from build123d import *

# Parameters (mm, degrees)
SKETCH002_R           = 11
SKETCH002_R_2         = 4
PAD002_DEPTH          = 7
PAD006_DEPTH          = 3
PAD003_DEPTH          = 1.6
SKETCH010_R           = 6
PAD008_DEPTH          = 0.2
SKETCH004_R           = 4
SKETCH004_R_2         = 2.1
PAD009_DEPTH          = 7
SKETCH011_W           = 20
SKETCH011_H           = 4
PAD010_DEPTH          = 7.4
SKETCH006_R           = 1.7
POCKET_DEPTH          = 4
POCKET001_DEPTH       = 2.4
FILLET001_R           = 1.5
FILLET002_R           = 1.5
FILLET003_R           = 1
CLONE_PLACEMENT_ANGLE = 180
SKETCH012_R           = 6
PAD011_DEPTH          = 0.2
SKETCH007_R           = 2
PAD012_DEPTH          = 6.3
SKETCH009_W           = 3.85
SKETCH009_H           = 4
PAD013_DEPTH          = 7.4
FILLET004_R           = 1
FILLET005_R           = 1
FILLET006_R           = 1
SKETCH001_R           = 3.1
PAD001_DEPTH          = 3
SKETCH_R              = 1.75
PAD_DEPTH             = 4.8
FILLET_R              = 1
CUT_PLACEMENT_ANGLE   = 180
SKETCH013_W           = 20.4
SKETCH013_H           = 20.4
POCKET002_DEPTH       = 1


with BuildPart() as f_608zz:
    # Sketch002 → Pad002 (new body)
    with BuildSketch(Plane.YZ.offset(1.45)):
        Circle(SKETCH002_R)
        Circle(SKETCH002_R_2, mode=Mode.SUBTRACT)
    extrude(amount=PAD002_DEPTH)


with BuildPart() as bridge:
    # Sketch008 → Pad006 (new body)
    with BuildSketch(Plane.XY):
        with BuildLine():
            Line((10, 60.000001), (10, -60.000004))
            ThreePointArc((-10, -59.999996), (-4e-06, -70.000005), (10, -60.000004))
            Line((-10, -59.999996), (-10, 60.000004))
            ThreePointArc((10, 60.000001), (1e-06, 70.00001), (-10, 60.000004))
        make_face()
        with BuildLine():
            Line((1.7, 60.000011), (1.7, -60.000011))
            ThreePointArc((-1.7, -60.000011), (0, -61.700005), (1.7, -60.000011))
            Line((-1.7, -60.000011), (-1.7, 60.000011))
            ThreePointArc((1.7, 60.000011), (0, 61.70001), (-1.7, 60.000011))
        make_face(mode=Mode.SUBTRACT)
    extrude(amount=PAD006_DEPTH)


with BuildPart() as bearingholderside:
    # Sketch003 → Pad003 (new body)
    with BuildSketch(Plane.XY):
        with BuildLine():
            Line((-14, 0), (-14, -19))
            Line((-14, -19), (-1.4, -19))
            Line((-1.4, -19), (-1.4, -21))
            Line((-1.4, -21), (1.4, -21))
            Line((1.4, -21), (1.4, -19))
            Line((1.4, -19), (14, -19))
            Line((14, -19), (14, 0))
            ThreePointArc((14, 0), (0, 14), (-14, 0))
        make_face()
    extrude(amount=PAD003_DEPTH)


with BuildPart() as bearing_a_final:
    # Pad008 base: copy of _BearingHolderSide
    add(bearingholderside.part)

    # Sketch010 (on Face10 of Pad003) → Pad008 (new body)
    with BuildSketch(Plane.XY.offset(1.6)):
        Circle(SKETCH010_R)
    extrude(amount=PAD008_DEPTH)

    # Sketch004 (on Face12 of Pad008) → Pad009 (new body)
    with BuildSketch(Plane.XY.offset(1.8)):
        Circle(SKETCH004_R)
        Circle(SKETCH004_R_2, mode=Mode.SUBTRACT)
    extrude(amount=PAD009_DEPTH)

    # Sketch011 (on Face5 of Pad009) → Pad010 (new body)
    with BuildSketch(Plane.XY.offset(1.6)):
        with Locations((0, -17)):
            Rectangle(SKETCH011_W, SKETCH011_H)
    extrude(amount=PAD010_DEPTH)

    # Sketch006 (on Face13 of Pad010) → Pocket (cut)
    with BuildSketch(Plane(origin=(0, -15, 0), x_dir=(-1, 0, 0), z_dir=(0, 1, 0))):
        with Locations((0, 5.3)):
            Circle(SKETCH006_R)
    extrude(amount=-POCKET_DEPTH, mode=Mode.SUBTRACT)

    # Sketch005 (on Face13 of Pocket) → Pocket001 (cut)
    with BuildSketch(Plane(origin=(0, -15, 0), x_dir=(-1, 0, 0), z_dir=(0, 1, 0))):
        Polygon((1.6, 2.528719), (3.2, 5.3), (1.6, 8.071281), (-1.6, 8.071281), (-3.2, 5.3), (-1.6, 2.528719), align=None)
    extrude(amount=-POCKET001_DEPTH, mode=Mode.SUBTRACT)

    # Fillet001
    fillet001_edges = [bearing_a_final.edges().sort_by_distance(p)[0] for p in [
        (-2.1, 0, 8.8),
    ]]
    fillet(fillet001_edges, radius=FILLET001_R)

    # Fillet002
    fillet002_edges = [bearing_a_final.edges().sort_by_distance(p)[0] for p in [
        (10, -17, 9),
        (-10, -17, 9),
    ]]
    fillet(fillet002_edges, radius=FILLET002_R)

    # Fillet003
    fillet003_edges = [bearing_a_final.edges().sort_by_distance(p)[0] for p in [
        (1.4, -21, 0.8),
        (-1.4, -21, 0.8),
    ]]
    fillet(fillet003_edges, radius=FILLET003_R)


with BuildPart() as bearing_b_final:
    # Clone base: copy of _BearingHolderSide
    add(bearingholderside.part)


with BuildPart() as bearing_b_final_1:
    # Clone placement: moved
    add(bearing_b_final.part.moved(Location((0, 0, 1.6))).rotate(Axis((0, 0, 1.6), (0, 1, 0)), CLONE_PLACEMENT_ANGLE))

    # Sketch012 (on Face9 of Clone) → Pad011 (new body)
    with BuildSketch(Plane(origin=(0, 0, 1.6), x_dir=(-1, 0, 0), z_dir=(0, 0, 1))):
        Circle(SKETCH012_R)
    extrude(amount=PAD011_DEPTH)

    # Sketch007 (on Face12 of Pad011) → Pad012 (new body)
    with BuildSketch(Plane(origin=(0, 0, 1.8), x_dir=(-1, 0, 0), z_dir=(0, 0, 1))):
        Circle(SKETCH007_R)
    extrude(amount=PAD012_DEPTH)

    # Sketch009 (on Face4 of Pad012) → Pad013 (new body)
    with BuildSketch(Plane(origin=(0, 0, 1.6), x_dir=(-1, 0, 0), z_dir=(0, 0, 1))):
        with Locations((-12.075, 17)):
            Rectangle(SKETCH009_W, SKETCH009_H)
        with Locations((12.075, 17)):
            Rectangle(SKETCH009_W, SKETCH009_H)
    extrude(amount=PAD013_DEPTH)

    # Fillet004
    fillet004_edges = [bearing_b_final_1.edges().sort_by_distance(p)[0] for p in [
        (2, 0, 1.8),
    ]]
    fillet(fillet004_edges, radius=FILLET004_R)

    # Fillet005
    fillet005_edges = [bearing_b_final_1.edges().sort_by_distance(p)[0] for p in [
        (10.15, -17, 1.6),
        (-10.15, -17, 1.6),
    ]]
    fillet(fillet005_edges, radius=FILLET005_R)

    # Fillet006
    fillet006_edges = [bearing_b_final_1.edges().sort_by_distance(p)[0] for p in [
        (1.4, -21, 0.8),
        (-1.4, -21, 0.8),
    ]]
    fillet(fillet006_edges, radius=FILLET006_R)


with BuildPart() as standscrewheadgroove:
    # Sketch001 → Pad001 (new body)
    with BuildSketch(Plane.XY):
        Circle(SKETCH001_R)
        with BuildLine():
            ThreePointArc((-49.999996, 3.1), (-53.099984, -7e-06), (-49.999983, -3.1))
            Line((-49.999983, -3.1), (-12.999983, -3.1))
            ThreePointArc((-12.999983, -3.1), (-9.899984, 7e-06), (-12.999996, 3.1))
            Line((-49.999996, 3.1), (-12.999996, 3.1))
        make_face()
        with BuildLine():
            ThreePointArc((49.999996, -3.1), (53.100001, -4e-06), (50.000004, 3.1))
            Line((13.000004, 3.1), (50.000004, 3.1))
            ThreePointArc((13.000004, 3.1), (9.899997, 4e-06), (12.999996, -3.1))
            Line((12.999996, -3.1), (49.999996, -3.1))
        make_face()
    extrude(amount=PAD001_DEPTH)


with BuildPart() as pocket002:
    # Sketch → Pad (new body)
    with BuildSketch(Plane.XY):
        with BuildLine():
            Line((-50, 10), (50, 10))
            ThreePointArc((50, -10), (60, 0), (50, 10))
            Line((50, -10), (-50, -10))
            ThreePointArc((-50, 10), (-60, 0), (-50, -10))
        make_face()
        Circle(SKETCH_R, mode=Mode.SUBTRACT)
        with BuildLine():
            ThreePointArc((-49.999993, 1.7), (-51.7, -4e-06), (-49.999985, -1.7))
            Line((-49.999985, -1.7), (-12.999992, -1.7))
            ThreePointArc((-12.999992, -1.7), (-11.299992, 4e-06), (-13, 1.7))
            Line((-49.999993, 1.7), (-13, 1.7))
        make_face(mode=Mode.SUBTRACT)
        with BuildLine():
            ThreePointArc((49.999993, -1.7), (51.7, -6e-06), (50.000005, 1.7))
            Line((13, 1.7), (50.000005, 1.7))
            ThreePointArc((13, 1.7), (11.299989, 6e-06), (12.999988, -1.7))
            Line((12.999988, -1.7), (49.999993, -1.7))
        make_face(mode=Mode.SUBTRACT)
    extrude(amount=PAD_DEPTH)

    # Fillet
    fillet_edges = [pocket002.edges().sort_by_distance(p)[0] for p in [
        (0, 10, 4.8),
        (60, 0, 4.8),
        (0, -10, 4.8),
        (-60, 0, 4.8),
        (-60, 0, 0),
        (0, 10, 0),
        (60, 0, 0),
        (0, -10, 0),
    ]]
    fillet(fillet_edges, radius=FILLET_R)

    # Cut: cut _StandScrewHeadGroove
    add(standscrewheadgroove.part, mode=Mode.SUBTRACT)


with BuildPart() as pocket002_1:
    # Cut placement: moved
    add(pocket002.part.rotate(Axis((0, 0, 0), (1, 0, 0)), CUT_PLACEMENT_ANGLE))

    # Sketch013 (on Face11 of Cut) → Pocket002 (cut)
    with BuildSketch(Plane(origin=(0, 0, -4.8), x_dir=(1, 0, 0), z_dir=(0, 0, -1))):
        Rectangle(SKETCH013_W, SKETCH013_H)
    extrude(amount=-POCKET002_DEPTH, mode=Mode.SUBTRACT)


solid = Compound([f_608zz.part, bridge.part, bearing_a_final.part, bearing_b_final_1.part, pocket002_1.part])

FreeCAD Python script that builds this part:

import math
import FreeCAD as App
import Part
import Sketcher
from FreeCAD import Vector
Q = App.Units.Quantity


def edges_at(feature, points):
    """Names of the edges that pass closest to the given points."""
    edges = feature.Shape.Edges
    near = lambda p: min(range(len(edges)), key=lambda i: edges[i].distToShape(Part.Vertex(*p))[0])
    return sorted({f"Edge{near(p) + 1}" for p in points})

doc = App.newDocument("Part")
body = doc.addObject("PartDesign::Body", "Body")

sketch1 = body.newObject("Sketcher::SketchObject", "Sketch")
sketch1.AttachmentSupport = (doc.getObject("YZ_Plane"), [""])
sketch1.MapMode = "FlatFace"
sketch1.AttachmentOffset = App.Placement(Vector(0, 0, 1.45), App.Rotation())
sketch1.addGeometry([
    Part.Circle(Vector(0, 0, 0), Vector(0, 0, 1), 11),
    Part.Circle(Vector(0, 0, 0), Vector(0, 0, 1), 4),
], False)
sketch1.addConstraint([
    Sketcher.Constraint("Coincident", 0, 3, -1, 1),
    Sketcher.Constraint("Coincident", 1, 3, -1, 1),
    Sketcher.Constraint("Diameter", 0, Q("22 mm")),
    Sketcher.Constraint("Diameter", 1, Q("8 mm")),
])
pad1 = body.newObject("PartDesign::Pad", "Pad")
pad1.Profile = sketch1
pad1.Length = 7
body2 = doc.addObject("PartDesign::Body", "Body001")

sketch2 = body2.newObject("Sketcher::SketchObject", "Sketch001")
sketch2.AttachmentSupport = (doc.getObject("XY_Plane001"), [""])
sketch2.MapMode = "FlatFace"
sketch2.addGeometry([
    Part.LineSegment(Vector(10, -60.000004, 0), Vector(10, 60.000001, 0)),
    Part.ArcOfCircle(Part.Circle(Vector(0, 60.00001, 0), Vector(0, 0, 1), 10), math.radians(-0.000052), math.radians(180.000034)),
    Part.LineSegment(Vector(-10, 60.000004, 0), Vector(-10, -59.999996, 0)),
    Part.ArcOfCircle(Part.Circle(Vector(0, -60.000005, 0), Vector(0, 0, 1), 10), math.radians(179.999948), math.radians(360.000006)),
    Part.LineSegment(Vector(1.7, 60.000011, 0), Vector(1.7, -60.000011, 0)),
    Part.ArcOfCircle(Part.Circle(Vector(0, -60.000005, 0), Vector(0, 0, 1), 1.7), math.radians(-179.999798), math.radians(-0.000202)),
    Part.LineSegment(Vector(-1.7, -60.000011, 0), Vector(-1.7, 60.000011, 0)),
    Part.ArcOfCircle(Part.Circle(Vector(0, 60.00001, 0), Vector(0, 0, 1), 1.7), math.radians(0.000034), math.radians(179.999966)),
], False)
sketch2.addConstraint([
    Sketcher.Constraint("Tangent", 0, 2, 1, 1),
    Sketcher.Constraint("Tangent", 1, 2, 2, 1),
    Sketcher.Constraint("Tangent", 2, 2, 3, 1),
    Sketcher.Constraint("Tangent", 3, 2, 0, 1),
    Sketcher.Constraint("Coincident", 4, 2, 5, 2),
    Sketcher.Constraint("Coincident", 5, 1, 6, 1),
    Sketcher.Constraint("Tangent", 6, 2, 7, 2),
    Sketcher.Constraint("Tangent", 7, 1, 4, 1),
    Sketcher.Constraint("Vertical", 0),
    Sketcher.Constraint("Vertical", 2),
    Sketcher.Constraint("Vertical", 4),
    Sketcher.Constraint("Vertical", 6),
    Sketcher.Constraint("Coincident", 5, 3, 3, 3),
    Sketcher.Constraint("Symmetric", 1, 3, 3, 3, -1, 1),
    Sketcher.Constraint("Horizontal", 4, 2, 5, 1),
    Sketcher.Constraint("Radius", 1, Q("10 mm")),
    Sketcher.Constraint("Radius", 5, Q("1.7 mm")),
    Sketcher.Constraint("DistanceY", 2, 2, 2, 1, Q("120 mm")),
    Sketcher.Constraint("DistanceY", 4, 2, 4, 1, Q("120.000022 mm")),
    Sketcher.Constraint("DistanceY", -1, 1, 7, 3, Q("60.00001 mm")),
])
pad2 = body2.newObject("PartDesign::Pad", "Pad001")
pad2.Profile = sketch2
pad2.Length = 3
body3 = doc.addObject("PartDesign::Body", "Body002")

sketch3 = body3.newObject("Sketcher::SketchObject", "Sketch002")
sketch3.AttachmentSupport = (doc.getObject("XY_Plane002"), [""])
sketch3.MapMode = "FlatFace"
sketch3.addGeometry([
    Part.LineSegment(Vector(-14, 0, 0), Vector(-14, -19, 0)),
    Part.LineSegment(Vector(-14, -19, 0), Vector(-1.4, -19, 0)),
    Part.LineSegment(Vector(-1.4, -19, 0), Vector(-1.4, -21, 0)),
    Part.LineSegment(Vector(-1.4, -21, 0), Vector(1.4, -21, 0)),
    Part.LineSegment(Vector(1.4, -21, 0), Vector(1.4, -19, 0)),
    Part.LineSegment(Vector(1.4, -19, 0), Vector(14, -19, 0)),
    Part.LineSegment(Vector(14, -19, 0), Vector(14, 0, 0)),
    Part.ArcOfCircle(Part.Circle(Vector(0, 0, 0), Vector(0, 0, 1), 14), math.radians(0), math.radians(180)),
], False)
sketch3.addConstraint([
    Sketcher.Constraint("Coincident", 0, 2, 1, 1),
    Sketcher.Constraint("Coincident", 1, 2, 2, 1),
    Sketcher.Constraint("Coincident", 2, 2, 3, 1),
    Sketcher.Constraint("Coincident", 3, 2, 4, 1),
    Sketcher.Constraint("Coincident", 4, 2, 5, 1),
    Sketcher.Constraint("Coincident", 5, 2, 6, 1),
    Sketcher.Constraint("Tangent", 6, 2, 7, 1),
    Sketcher.Constraint("Tangent", 7, 2, 0, 1),
    Sketcher.Constraint("Vertical", 0),
    Sketcher.Constraint("Horizontal", 1),
    Sketcher.Constraint("Vertical", 2),
    Sketcher.Constraint("Horizontal", 3),
    Sketcher.Constraint("Vertical", 4),
    Sketcher.Constraint("Horizontal", 5),
    Sketcher.Constraint("Vertical", 6),
    Sketcher.Constraint("Coincident", 7, 3, -1, 1),
    Sketcher.Constraint("Symmetric", 1, 2, 4, 2, -2),
    Sketcher.Constraint("Radius", 7, Q("14 mm")),
    Sketcher.Constraint("DistanceY", 0, 2, 0, 1, Q("19 mm")),
    Sketcher.Constraint("DistanceY", 2, 2, 2, 1, Q("2 mm")),
    Sketcher.Constraint("DistanceX", 1, 1, 1, 2, Q("12.6 mm")),
])
pad3 = body3.newObject("PartDesign::Pad", "Pad002")
pad3.Profile = sketch3
pad3.Length = 1.6
body4 = doc.addObject("PartDesign::Body", "Body003")
doc.recompute()

body4.BaseFeature = body3
doc.recompute()

sketch4 = body4.newObject("Sketcher::SketchObject", "Sketch003")
sketch4.AttachmentSupport = (doc.getObject("XY_Plane003"), [""])
sketch4.MapMode = "FlatFace"
sketch4.AttachmentOffset = App.Placement(Vector(0, 0, 1.6), App.Rotation())
sketch4.addGeometry(Part.Circle(Vector(0, 0, 0), Vector(0, 0, 1), 6), False)
sketch4.addConstraint([
    Sketcher.Constraint("Coincident", 0, 3, -1, 1),
    Sketcher.Constraint("Diameter", 0, Q("12 mm")),
])
pad4 = body4.newObject("PartDesign::Pad", "Pad003")
pad4.Profile = sketch4
pad4.Length = 0.2

sketch5 = body4.newObject("Sketcher::SketchObject", "Sketch004")
sketch5.AttachmentSupport = (doc.getObject("XY_Plane003"), [""])
sketch5.MapMode = "FlatFace"
sketch5.AttachmentOffset = App.Placement(Vector(0, 0, 1.8), App.Rotation())
sketch5.addGeometry([
    Part.Circle(Vector(0, 0, 0), Vector(0, 0, 1), 4),
    Part.Circle(Vector(0, 0, 0), Vector(0, 0, 1), 2.1),
], False)
sketch5.addConstraint([
    Sketcher.Constraint("Coincident", 0, 3, -1, 1),
    Sketcher.Constraint("Coincident", 1, 3, -1, 1),
    Sketcher.Constraint("Diameter", 0, Q("8 mm")),
    Sketcher.Constraint("Diameter", 1, Q("4.2 mm")),
])
pad5 = body4.newObject("PartDesign::Pad", "Pad004")
pad5.Profile = sketch5
pad5.Length = 7

sketch6 = body4.newObject("Sketcher::SketchObject", "Sketch005")
sketch6.AttachmentSupport = (doc.getObject("XY_Plane003"), [""])
sketch6.MapMode = "FlatFace"
sketch6.AttachmentOffset = App.Placement(Vector(0, 0, 1.6), App.Rotation())
sketch6.addGeometry([
    Part.LineSegment(Vector(-10, -15, 0), Vector(-10, -19, 0)),
    Part.LineSegment(Vector(-10, -19, 0), Vector(10, -19, 0)),
    Part.LineSegment(Vector(10, -19, 0), Vector(10, -15, 0)),
    Part.LineSegment(Vector(10, -15, 0), Vector(-10, -15, 0)),
], False)
sketch6.addConstraint([
    Sketcher.Constraint("Coincident", 0, 2, 1, 1),
    Sketcher.Constraint("Coincident", 1, 2, 2, 1),
    Sketcher.Constraint("Coincident", 2, 2, 3, 1),
    Sketcher.Constraint("Coincident", 3, 2, 0, 1),
    Sketcher.Constraint("Vertical", 0),
    Sketcher.Constraint("Horizontal", 1),
    Sketcher.Constraint("Vertical", 2),
    Sketcher.Constraint("Horizontal", 3),
    Sketcher.Constraint("DistanceX", 1, 1, 1, 2, Q("20 mm")),
    Sketcher.Constraint("DistanceY", 0, 2, 0, 1, Q("4 mm")),
    Sketcher.Constraint("DistanceX", 0, 2, -1, 1, Q("10 mm")),
    Sketcher.Constraint("DistanceY", 0, 2, -1, 1, Q("19 mm")),
])
pad6 = body4.newObject("PartDesign::Pad", "Pad005")
pad6.Profile = sketch6
pad6.Length = 7.4

sketch7 = body4.newObject("Sketcher::SketchObject", "Sketch006")
sketch7.AttachmentSupport = (doc.getObject("XZ_Plane003"), [""])
sketch7.MapMode = "FlatFace"
sketch7.AttachmentOffset = App.Placement(Vector(0, 0, 15), App.Rotation())
sketch7.addGeometry(Part.Circle(Vector(0, 5.3, 0), Vector(0, 0, 1), 1.7), False)
sketch7.addConstraint([
    Sketcher.Constraint("PointOnObject", 0, 3, -2),
    Sketcher.Constraint("Diameter", 0, Q("3.4 mm")),
    Sketcher.Constraint("DistanceY", -1, 1, 0, 3, Q("5.3 mm")),
])
pocket1 = body4.newObject("PartDesign::Pocket", "Pocket")
pocket1.Profile = sketch7
pocket1.Length = 4
pocket1.Reversed = True

sketch8 = body4.newObject("Sketcher::SketchObject", "Sketch007")
sketch8.AttachmentSupport = (doc.getObject("XZ_Plane003"), [""])
sketch8.MapMode = "FlatFace"
sketch8.AttachmentOffset = App.Placement(Vector(0, 0, 15), App.Rotation())
sketch8.addGeometry([
    Part.LineSegment(Vector(-1.6, 2.528719, 0), Vector(-3.2, 5.3, 0)),
    Part.LineSegment(Vector(-3.2, 5.3, 0), Vector(-1.6, 8.071281, 0)),
    Part.LineSegment(Vector(-1.6, 8.071281, 0), Vector(1.6, 8.071281, 0)),
    Part.LineSegment(Vector(1.6, 8.071281, 0), Vector(3.2, 5.3, 0)),
    Part.LineSegment(Vector(3.2, 5.3, 0), Vector(1.6, 2.528719, 0)),
    Part.LineSegment(Vector(1.6, 2.528719, 0), Vector(-1.6, 2.528719, 0)),
], False)
sketch8.addConstraint([
    Sketcher.Constraint("Coincident", 0, 2, 1, 1),
    Sketcher.Constraint("Coincident", 1, 2, 2, 1),
    Sketcher.Constraint("Coincident", 2, 2, 3, 1),
    Sketcher.Constraint("Coincident", 3, 2, 4, 1),
    Sketcher.Constraint("Coincident", 4, 2, 5, 1),
    Sketcher.Constraint("Coincident", 5, 2, 0, 1),
    Sketcher.Constraint("Horizontal", 2),
    Sketcher.Constraint("Horizontal", 5),
    Sketcher.Constraint("Symmetric", 0, 2, 3, 2, -2),
    Sketcher.Constraint("Parallel", 0, 3),
    Sketcher.Constraint("Parallel", 1, 4),
    Sketcher.Constraint("Vertical", 2, 2, 4, 2),
    Sketcher.Constraint("Vertical", 1, 2, 5, 2),
    Sketcher.Constraint("Angle", 0, Q("120.000003 deg")),
    Sketcher.Constraint("DistanceX", 2, 1, 2, 2, Q("3.2 mm")),
    Sketcher.Constraint("Distance", 0, Q("3.2 mm")),
    Sketcher.Constraint("DistanceY", -1, 1, 0, 2, Q("5.3 mm")),
])
pocket2 = body4.newObject("PartDesign::Pocket", "Pocket001")
pocket2.Profile = sketch8
pocket2.Length = 2.4
pocket2.Reversed = True
doc.recompute()

fillet = body4.newObject("PartDesign::Fillet", "Fillet")
fillet.Base = (pocket2, edges_at(pocket2, [(-2.1, 0, 8.8)]))
fillet.Radius = 1.5
doc.recompute()

fillet2 = body4.newObject("PartDesign::Fillet", "Fillet001")
fillet2.Base = (fillet, edges_at(fillet, [(10, -17, 9), (-10, -17, 9)]))
fillet2.Radius = 1.5
doc.recompute()

fillet3 = body4.newObject("PartDesign::Fillet", "Fillet002")
fillet3.Base = (fillet2, edges_at(fillet2, [(1.4, -21, 0.8), (-1.4, -21, 0.8)]))
fillet3.Radius = 1
body5 = doc.addObject("PartDesign::Body", "Body004")
doc.recompute()

body3.Placement = App.Placement(Vector(0, 0, 1.6), App.Rotation(Vector(0, 1, 0), 180))
boolean = body5.newObject("PartDesign::Boolean", "Boolean")
boolean.Type = "Fuse"
boolean.addObjects([body3])

sketch9 = body5.newObject("Sketcher::SketchObject", "Sketch008")
sketch9.AttachmentSupport = (doc.getObject("XY_Plane004"), [""])
sketch9.MapMode = "FlatFace"
sketch9.AttachmentOffset = App.Placement(Vector(0, 0, 1.6), App.Rotation())
sketch9.addGeometry(Part.Circle(Vector(0, 0, 0), Vector(0, 0, 1), 6), False)
sketch9.addConstraint([
    Sketcher.Constraint("Coincident", 0, 3, -1, 1),
    Sketcher.Constraint("Diameter", 0, Q("12 mm")),
])
pad7 = body5.newObject("PartDesign::Pad", "Pad006")
pad7.Profile = sketch9
pad7.Length = 0.2

sketch10 = body5.newObject("Sketcher::SketchObject", "Sketch009")
sketch10.AttachmentSupport = (doc.getObject("XY_Plane004"), [""])
sketch10.MapMode = "FlatFace"
sketch10.AttachmentOffset = App.Placement(Vector(0, 0, 1.8), App.Rotation())
sketch10.addGeometry(Part.Circle(Vector(0, 0, 0), Vector(0, 0, 1), 2), False)
sketch10.addConstraint([
    Sketcher.Constraint("Coincident", 0, 3, -1, 1),
    Sketcher.Constraint("Diameter", 0, Q("4 mm")),
])
pad8 = body5.newObject("PartDesign::Pad", "Pad007")
pad8.Profile = sketch10
pad8.Length = 6.3

sketch11 = body5.newObject("Sketcher::SketchObject", "Sketch010")
sketch11.AttachmentSupport = (doc.getObject("XY_Plane004"), [""])
sketch11.MapMode = "FlatFace"
sketch11.AttachmentOffset = App.Placement(Vector(0, 0, 1.6), App.Rotation())
sketch11.addGeometry([
    Part.LineSegment(Vector(14, -19, 0), Vector(14, -15, 0)),
    Part.LineSegment(Vector(14, -15, 0), Vector(10.15, -15, 0)),
    Part.LineSegment(Vector(10.15, -15, 0), Vector(10.15, -19, 0)),
    Part.LineSegment(Vector(10.15, -19, 0), Vector(14, -19, 0)),
    Part.LineSegment(Vector(-10.15, -19, 0), Vector(-10.15, -15, 0)),
    Part.LineSegment(Vector(-10.15, -15, 0), Vector(-14, -15, 0)),
    Part.LineSegment(Vector(-14, -15, 0), Vector(-14, -19, 0)),
    Part.LineSegment(Vector(-14, -19, 0), Vector(-10.15, -19, 0)),
], False)
sketch11.addConstraint([
    Sketcher.Constraint("Coincident", 0, 2, 1, 1),
    Sketcher.Constraint("Coincident", 1, 2, 2, 1),
    Sketcher.Constraint("Coincident", 2, 2, 3, 1),
    Sketcher.Constraint("Coincident", 3, 2, 0, 1),
    Sketcher.Constraint("Coincident", 4, 2, 5, 1),
    Sketcher.Constraint("Coincident", 5, 2, 6, 1),
    Sketcher.Constraint("Coincident", 6, 2, 7, 1),
    Sketcher.Constraint("Coincident", 7, 2, 4, 1),
    Sketcher.Constraint("Vertical", 0),
    Sketcher.Constraint("Horizontal", 1),
    Sketcher.Constraint("Vertical", 2),
    Sketcher.Constraint("Horizontal", 3),
    Sketcher.Constraint("Vertical", 4),
    Sketcher.Constraint("Horizontal", 5),
    Sketcher.Constraint("Vertical", 6),
    Sketcher.Constraint("Horizontal", 7),
    Sketcher.Constraint("Symmetric", 1, 2, 4, 2, -2),
    Sketcher.Constraint("Symmetric", 3, 2, 6, 2, -2),
    Sketcher.Constraint("DistanceY", 0, 1, 0, 2, Q("4 mm")),
    Sketcher.Constraint("DistanceX", -1, 1, 0, 2, Q("14 mm")),
    Sketcher.Constraint("DistanceY", 0, 2, -1, 1, Q("15 mm")),
    Sketcher.Constraint("DistanceX", 1, 2, 1, 1, Q("3.85 mm")),
])
pad9 = body5.newObject("PartDesign::Pad", "Pad008")
pad9.Profile = sketch11
pad9.Length = 7.4
doc.recompute()

fillet4 = body5.newObject("PartDesign::Fillet", "Fillet003")
fillet4.Base = (pad9, edges_at(pad9, [(2, 0, 1.8)]))
fillet4.Radius = 1
doc.recompute()

fillet5 = body5.newObject("PartDesign::Fillet", "Fillet004")
fillet5.Base = (fillet4, edges_at(fillet4, [(10.15, -17, 1.6), (-10.15, -17, 1.6)]))
fillet5.Radius = 1
doc.recompute()

fillet6 = body5.newObject("PartDesign::Fillet", "Fillet005")
fillet6.Base = (fillet5, edges_at(fillet5, [(1.4, -21, 0.8), (-1.4, -21, 0.8)]))
fillet6.Radius = 1
body6 = doc.addObject("PartDesign::Body", "Body005")
body6.AllowCompound = True

sketch12 = body6.newObject("Sketcher::SketchObject", "Sketch011")
sketch12.AttachmentSupport = (doc.getObject("XY_Plane005"), [""])
sketch12.MapMode = "FlatFace"
sketch12.addGeometry([
    Part.Circle(Vector(0, 0, 0), Vector(0, 0, 1), 3.1),
    Part.ArcOfCircle(Part.Circle(Vector(-49.999984, 0, 0), Vector(0, 0, 1), 3.1), math.radians(90.000222), math.radians(270.000018)),
    Part.LineSegment(Vector(-49.999983, -3.1, 0), Vector(-12.999983, -3.1, 0)),
    Part.ArcOfCircle(Part.Circle(Vector(-12.999984, 0, 0), Vector(0, 0, 1), 3.1), math.radians(-89.999982), math.radians(90.000222)),
    Part.LineSegment(Vector(-12.999996, 3.1, 0), Vector(-49.999996, 3.1, 0)),
    Part.ArcOfCircle(Part.Circle(Vector(50.000001, 0, 0), Vector(0, 0, 1), 3.1), math.radians(-90.000092), math.radians(89.999945)),
    Part.LineSegment(Vector(50.000004, 3.1, 0), Vector(13.000004, 3.1, 0)),
    Part.ArcOfCircle(Part.Circle(Vector(12.999997, 0, 0), Vector(0, 0, 1), 3.1), math.radians(89.999871), math.radians(269.999982)),
    Part.LineSegment(Vector(12.999996, -3.1, 0), Vector(49.999996, -3.1, 0)),
], False)
sketch12.addConstraint([
    Sketcher.Constraint("Tangent", 1, 2, 2, 1),
    Sketcher.Constraint("Tangent", 2, 2, 3, 1),
    Sketcher.Constraint("Coincident", 3, 2, 4, 1),
    Sketcher.Constraint("Coincident", 4, 2, 1, 1),
    Sketcher.Constraint("Tangent", 5, 2, 6, 1),
    Sketcher.Constraint("Coincident", 6, 2, 7, 1),
    Sketcher.Constraint("Tangent", 7, 2, 8, 1),
    Sketcher.Constraint("Tangent", 8, 2, 5, 1),
    Sketcher.Constraint("Horizontal", 2),
    Sketcher.Constraint("Horizontal", 4),
    Sketcher.Constraint("Horizontal", 6),
    Sketcher.Constraint("Horizontal", 8),
    Sketcher.Constraint("Coincident", 0, 3, -1, 1),
    Sketcher.Constraint("Equal", 0, 1),
    Sketcher.Constraint("Equal", 3, 5),
    Sketcher.Constraint("Symmetric", 3, 2, 7, 2, -1, 1),
    Sketcher.Constraint("Symmetric", 4, 2, 5, 2, -2),
    Sketcher.Constraint("Equal", 2, 4),
    Sketcher.Constraint("Equal", 4, 6),
    Sketcher.Constraint("Diameter", 0, Q("6.2 mm")),
    Sketcher.Constraint("DistanceX", 2, 1, 2, 2, Q("37 mm")),
    Sketcher.Constraint("DistanceX", -1, 1, 5, 3, Q("50.000001 mm")),
    Sketcher.Constraint("DistanceX", 3, 3, 7, 3, Q("25.999981 mm")),
])
pad10 = body6.newObject("PartDesign::Pad", "Pad009")
pad10.Profile = sketch12
pad10.Length = 3
body7 = doc.addObject("PartDesign::Body", "Body006")

sketch13 = body7.newObject("Sketcher::SketchObject", "Sketch012")
sketch13.AttachmentSupport = (doc.getObject("XY_Plane006"), [""])
sketch13.MapMode = "FlatFace"
sketch13.addGeometry([
    Part.LineSegment(Vector(50, 10, 0), Vector(-50, 10, 0)),
    Part.ArcOfCircle(Part.Circle(Vector(-50, 0, 0), Vector(0, 0, 1), 10), math.radians(90), math.radians(270)),
    Part.LineSegment(Vector(-50, -10, 0), Vector(50, -10, 0)),
    Part.ArcOfCircle(Part.Circle(Vector(50, 0, 0), Vector(0, 0, 1), 10), math.radians(-90), math.radians(90)),
    Part.LineSegment(Vector(-49.999993, 1.7, 0), Vector(-13, 1.7, 0)),
    Part.ArcOfCircle(Part.Circle(Vector(-12.999992, 0, 0), Vector(0, 0, 1), 1.7), math.radians(-90), math.radians(90.00027)),
    Part.LineSegment(Vector(-12.999992, -1.7, 0), Vector(-49.999985, -1.7, 0)),
    Part.ArcOfCircle(Part.Circle(Vector(-50, 0, 0), Vector(0, 0, 1), 1.7), math.radians(89.999764), math.radians(270.000506)),
    Part.LineSegment(Vector(49.999993, -1.7, 0), Vector(12.999988, -1.7, 0)),
    Part.ArcOfCircle(Part.Circle(Vector(12.999989, 0, 0), Vector(0, 0, 1), 1.7), math.radians(89.999629), math.radians(269.999966)),
    Part.LineSegment(Vector(13, 1.7, 0), Vector(50.000005, 1.7, 0)),
    Part.ArcOfCircle(Part.Circle(Vector(50, 0, 0), Vector(0, 0, 1), 1.7), math.radians(-90.000236), math.radians(89.999831)),
    Part.Circle(Vector(0, 0, 0), Vector(0, 0, 1), 1.75),
], False)
sketch13.addConstraint([
    Sketcher.Constraint("Tangent", 0, 2, 1, 1),
    Sketcher.Constraint("Tangent", 1, 2, 2, 1),
    Sketcher.Constraint("Tangent", 2, 2, 3, 1),
    Sketcher.Constraint("Tangent", 3, 2, 0, 1),
    Sketcher.Constraint("Coincident", 4, 2, 5, 2),
    Sketcher.Constraint("Tangent", 5, 1, 6, 1),
    Sketcher.Constraint("Coincident", 6, 2, 7, 2),
    Sketcher.Constraint("Coincident", 7, 1, 4, 1),
    Sketcher.Constraint("Tangent", 8, 2, 9, 2),
    Sketcher.Constraint("Coincident", 9, 1, 10, 1),
    Sketcher.Constraint("Coincident", 10, 2, 11, 2),
    Sketcher.Constraint("Coincident", 11, 1, 8, 1),
    Sketcher.Constraint("Horizontal", 0),
    Sketcher.Constraint("Horizontal", 2),
    Sketcher.Constraint("Horizontal", 4),
    Sketcher.Constraint("Horizontal", 6),
    Sketcher.Constraint("Horizontal", 8),
    Sketcher.Constraint("Horizontal", 10),
    Sketcher.Constraint("Coincident", 12, 3, -1, 1),
    Sketcher.Constraint("Coincident", 7, 3, 1, 3),
    Sketcher.Constraint("Coincident", 11, 3, 3, 3),
    Sketcher.Constraint("Equal", 7, 9),
    Sketcher.Constraint("Symmetric", 1, 3, 3, 3, -1, 1),
    Sketcher.Constraint("Equal", 4, 6),
    Sketcher.Constraint("Equal", 8, 10),
    Sketcher.Constraint("Radius", 1, Q("10 mm")),
    Sketcher.Constraint("Diameter", 12, Q("3.5 mm")),
    Sketcher.Constraint("Radius", 5, Q("1.7 mm")),
    Sketcher.Constraint("DistanceX", 0, 2, 0, 1, Q("100 mm")),
    Sketcher.Constraint("DistanceX", 4, 2, -1, 1, Q("13 mm")),
    Sketcher.Constraint("DistanceX", -1, 1, 9, 1, Q("13 mm")),
    Sketcher.Constraint("DistanceX", 4, 1, 4, 2, Q("36.999993 mm")),
    Sketcher.Constraint("DistanceX", 8, 2, 8, 1, Q("37.000005 mm")),
    Sketcher.Constraint("DistanceX", -1, 1, 9, 3, Q("12.999989 mm")),
    Sketcher.Constraint("DistanceX", 5, 3, 9, 3, Q("25.999981 mm")),
])
pad11 = body7.newObject("PartDesign::Pad", "Pad010")
pad11.Profile = sketch13
pad11.Length = 4.8
doc.recompute()

fillet7 = body7.newObject("PartDesign::Fillet", "Fillet006")
fillet7.Base = (pad11, edges_at(pad11, [
    (0, 10, 4.8),
    (60, 0, 4.8),
    (0, -10, 4.8),
    (-60, 0, 4.8),
    (-60, 0, 0),
    (0, 10, 0),
    (60, 0, 0),
    (0, -10, 0),
]))
fillet7.Radius = 1
doc.recompute()

boolean2 = body7.newObject("PartDesign::Boolean", "Boolean001")
boolean2.Type = "Cut"
boolean2.addObjects([body6])
body8 = doc.addObject("PartDesign::Body", "Body007")
doc.recompute()

body7.Placement = App.Placement(Vector(0, 0, 0), App.Rotation(Vector(1, 0, 0), 180))
boolean3 = body8.newObject("PartDesign::Boolean", "Boolean002")
boolean3.Type = "Fuse"
boolean3.addObjects([body7])

sketch14 = body8.newObject("Sketcher::SketchObject", "Sketch013")
sketch14.AttachmentSupport = (doc.getObject("XY_Plane007"), [""])
sketch14.MapMode = "FlatFace"
sketch14.AttachmentOffset = App.Placement(Vector(0, 0, -4.8), App.Rotation())
sketch14.addGeometry([
    Part.LineSegment(Vector(-10.2, -10.2, 0), Vector(-10.2, 10.2, 0)),
    Part.LineSegment(Vector(-10.2, 10.2, 0), Vector(10.2, 10.2, 0)),
    Part.LineSegment(Vector(10.2, 10.2, 0), Vector(10.2, -10.2, 0)),
    Part.LineSegment(Vector(10.2, -10.2, 0), Vector(-10.2, -10.2, 0)),
], False)
sketch14.addConstraint([
    Sketcher.Constraint("Coincident", 0, 2, 1, 1),
    Sketcher.Constraint("Coincident", 1, 2, 2, 1),
    Sketcher.Constraint("Coincident", 2, 2, 3, 1),
    Sketcher.Constraint("Coincident", 3, 2, 0, 1),
    Sketcher.Constraint("Vertical", 0),
    Sketcher.Constraint("Horizontal", 1),
    Sketcher.Constraint("Vertical", 2),
    Sketcher.Constraint("Horizontal", 3),
    Sketcher.Constraint("Symmetric", 0, 2, 2, 2, -1, 1),
    Sketcher.Constraint("Equal", 3, 0),
    Sketcher.Constraint("DistanceX", 1, 1, 1, 2, Q("20.4 mm")),
])
pocket3 = body8.newObject("PartDesign::Pocket", "Pocket002")
pocket3.Profile = sketch14
pocket3.Length = 1
pocket3.Reversed = True

doc.recompute()
